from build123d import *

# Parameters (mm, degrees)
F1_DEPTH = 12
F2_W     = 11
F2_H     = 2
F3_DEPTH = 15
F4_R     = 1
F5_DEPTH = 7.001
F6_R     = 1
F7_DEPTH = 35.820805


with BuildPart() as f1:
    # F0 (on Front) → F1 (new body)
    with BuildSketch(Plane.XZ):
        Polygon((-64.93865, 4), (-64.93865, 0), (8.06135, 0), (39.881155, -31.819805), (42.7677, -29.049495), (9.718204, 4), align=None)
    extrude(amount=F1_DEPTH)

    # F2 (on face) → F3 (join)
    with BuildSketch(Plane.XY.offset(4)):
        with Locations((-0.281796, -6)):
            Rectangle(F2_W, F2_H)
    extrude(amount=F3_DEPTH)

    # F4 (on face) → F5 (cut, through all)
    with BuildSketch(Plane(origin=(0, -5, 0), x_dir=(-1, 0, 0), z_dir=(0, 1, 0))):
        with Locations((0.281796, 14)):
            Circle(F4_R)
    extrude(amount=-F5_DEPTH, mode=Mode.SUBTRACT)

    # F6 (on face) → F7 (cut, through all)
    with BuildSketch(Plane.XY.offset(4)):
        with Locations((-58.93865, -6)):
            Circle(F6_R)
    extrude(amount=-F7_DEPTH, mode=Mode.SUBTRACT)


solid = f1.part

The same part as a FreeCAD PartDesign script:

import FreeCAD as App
import Part
import Sketcher
Q = App.Units.Quantity


def add_polygon(sketch, points):
    """Adds a closed chain of lines whose ends are joined by coincident constraints."""
    first, n = sketch.GeometryCount, len(points)
    for a, b in zip(points, points[1:] + points[:1]):
        sketch.addGeometry(Part.LineSegment(App.Vector(*a, 0), App.Vector(*b, 0)), False)
    for i in range(n):
        sketch.addConstraint(Sketcher.Constraint("Coincident", first + i, 2, first + (i + 1) % n, 1))

doc = App.newDocument("Part")
body = doc.addObject("PartDesign::Body", "Body")

sketch1 = body.newObject("Sketcher::SketchObject", "Sketch")
sketch1.AttachmentSupport = (doc.getObject("XZ_Plane"), [""])
sketch1.MapMode = "FlatFace"
add_polygon(sketch1, [(-64.9, 4), (-64.9, 0), (8.1, 0), (39.9, -31.8), (42.8, -29), (9.7, 4)])
sketch1.addConstraint(Sketcher.Constraint("Vertical", 0))
sketch1.addConstraint(Sketcher.Constraint("Horizontal", 1))
sketch1.addConstraint(Sketcher.Constraint("Horizontal", 5))
sketch1.addConstraint(Sketcher.Constraint("PointOnObject", 0, 2, -1))
sketch1.addConstraint(Sketcher.Constraint("Parallel", 2, 4))
sketch1.addConstraint(Sketcher.Constraint("DistanceX", 1, 1, 1, 2, 73.0))
sketch1.addConstraint(Sketcher.Constraint("DistanceY", 0, 2, 0, 1, 4.0))
sketch1.addConstraint(Sketcher.Constraint("Angle", 2, Q("-45 deg")))
sketch1.addConstraint(Sketcher.Constraint("Distance", 2, 45.0))
sketch1.addConstraint(Sketcher.Constraint("DistanceX", -1, 1, 3, 2, 42.7677))
sketch1.addConstraint(Sketcher.Constraint("DistanceX", 5, 2, 5, 1, 74.656854))
sketch1.addConstraint(Sketcher.Constraint("DistanceX", 0, 2, -1, 1, 64.93865))
pad1 = body.newObject("PartDesign::Pad", "Pad")
pad1.Profile = sketch1
pad1.Length = 12

sketch2 = body.newObject("Sketcher::SketchObject", "Sketch001")
sketch2.AttachmentSupport = (doc.getObject("XY_Plane"), [""])
sketch2.MapMode = "FlatFace"
sketch2.AttachmentOffset = App.Placement(App.Vector(0, 0, 4), App.Rotation())
add_polygon(sketch2, [(-5.8, -5), (-5.8, -7), (5.2, -7), (5.2, -5)])
sketch2.addConstraint(Sketcher.Constraint("Vertical", 0))
sketch2.addConstraint(Sketcher.Constraint("Horizontal", 1))
sketch2.addConstraint(Sketcher.Constraint("Vertical", 2))
sketch2.addConstraint(Sketcher.Constraint("Horizontal", 3))
sketch2.addConstraint(Sketcher.Constraint("DistanceX", 1, 1, 1, 2, 11.0))
sketch2.addConstraint(Sketcher.Constraint("DistanceY", 0, 2, 0, 1, 2.0))
sketch2.addConstraint(Sketcher.Constraint("DistanceY", 0, 2, -1, 1, 7.0))
sketch2.addConstraint(Sketcher.Constraint("DistanceX", 0, 2, -1, 1, 5.781796))
pad2 = body.newObject("PartDesign::Pad", "Pad001")
pad2.Profile = sketch2
pad2.Length = 15

sketch3 = body.newObject("Sketcher::SketchObject", "Sketch002")
sketch3.AttachmentSupport = (doc.getObject("XZ_Plane"), [""])
sketch3.MapMode = "FlatFace"
sketch3.AttachmentOffset = App.Placement(App.Vector(0, 0, 5), App.Rotation())
sketch3.addGeometry(Part.Circle(App.Vector(-0.3, 14, 0), App.Vector(0, 0, 1), 1), False)
sketch3.addConstraint(Sketcher.Constraint("Diameter", 0, 2.0))
sketch3.addConstraint(Sketcher.Constraint("DistanceY", -1, 1, 0, 3, 14.0))
sketch3.addConstraint(Sketcher.Constraint("DistanceX", 0, 3, -1, 1, 0.281796))
pocket1 = body.newObject("PartDesign::Pocket", "Pocket")
pocket1.Profile = sketch3
pocket1.Type = "ThroughAll"
pocket1.Reversed = True

sketch4 = body.newObject("Sketcher::SketchObject", "Sketch003")
sketch4.AttachmentSupport = (doc.getObject("XY_Plane"), [""])
sketch4.MapMode = "FlatFace"
sketch4.AttachmentOffset = App.Placement(App.Vector(0, 0, 4), App.Rotation())
sketch4.addGeometry(Part.Circle(App.Vector(-58.9, -6, 0), App.Vector(0, 0, 1), 1), False)
sketch4.addConstraint(Sketcher.Constraint("Diameter", 0, 2.0))
sketch4.addConstraint(Sketcher.Constraint("DistanceY", 0, 3, -1, 1, 6.0))
sketch4.addConstraint(Sketcher.Constraint("DistanceX", 0, 3, -1, 1, 58.93865))
pocket2 = body.newObject("PartDesign::Pocket", "Pocket001")
pocket2.Profile = sketch4
pocket2.Type = "ThroughAll"

doc.recompute()
